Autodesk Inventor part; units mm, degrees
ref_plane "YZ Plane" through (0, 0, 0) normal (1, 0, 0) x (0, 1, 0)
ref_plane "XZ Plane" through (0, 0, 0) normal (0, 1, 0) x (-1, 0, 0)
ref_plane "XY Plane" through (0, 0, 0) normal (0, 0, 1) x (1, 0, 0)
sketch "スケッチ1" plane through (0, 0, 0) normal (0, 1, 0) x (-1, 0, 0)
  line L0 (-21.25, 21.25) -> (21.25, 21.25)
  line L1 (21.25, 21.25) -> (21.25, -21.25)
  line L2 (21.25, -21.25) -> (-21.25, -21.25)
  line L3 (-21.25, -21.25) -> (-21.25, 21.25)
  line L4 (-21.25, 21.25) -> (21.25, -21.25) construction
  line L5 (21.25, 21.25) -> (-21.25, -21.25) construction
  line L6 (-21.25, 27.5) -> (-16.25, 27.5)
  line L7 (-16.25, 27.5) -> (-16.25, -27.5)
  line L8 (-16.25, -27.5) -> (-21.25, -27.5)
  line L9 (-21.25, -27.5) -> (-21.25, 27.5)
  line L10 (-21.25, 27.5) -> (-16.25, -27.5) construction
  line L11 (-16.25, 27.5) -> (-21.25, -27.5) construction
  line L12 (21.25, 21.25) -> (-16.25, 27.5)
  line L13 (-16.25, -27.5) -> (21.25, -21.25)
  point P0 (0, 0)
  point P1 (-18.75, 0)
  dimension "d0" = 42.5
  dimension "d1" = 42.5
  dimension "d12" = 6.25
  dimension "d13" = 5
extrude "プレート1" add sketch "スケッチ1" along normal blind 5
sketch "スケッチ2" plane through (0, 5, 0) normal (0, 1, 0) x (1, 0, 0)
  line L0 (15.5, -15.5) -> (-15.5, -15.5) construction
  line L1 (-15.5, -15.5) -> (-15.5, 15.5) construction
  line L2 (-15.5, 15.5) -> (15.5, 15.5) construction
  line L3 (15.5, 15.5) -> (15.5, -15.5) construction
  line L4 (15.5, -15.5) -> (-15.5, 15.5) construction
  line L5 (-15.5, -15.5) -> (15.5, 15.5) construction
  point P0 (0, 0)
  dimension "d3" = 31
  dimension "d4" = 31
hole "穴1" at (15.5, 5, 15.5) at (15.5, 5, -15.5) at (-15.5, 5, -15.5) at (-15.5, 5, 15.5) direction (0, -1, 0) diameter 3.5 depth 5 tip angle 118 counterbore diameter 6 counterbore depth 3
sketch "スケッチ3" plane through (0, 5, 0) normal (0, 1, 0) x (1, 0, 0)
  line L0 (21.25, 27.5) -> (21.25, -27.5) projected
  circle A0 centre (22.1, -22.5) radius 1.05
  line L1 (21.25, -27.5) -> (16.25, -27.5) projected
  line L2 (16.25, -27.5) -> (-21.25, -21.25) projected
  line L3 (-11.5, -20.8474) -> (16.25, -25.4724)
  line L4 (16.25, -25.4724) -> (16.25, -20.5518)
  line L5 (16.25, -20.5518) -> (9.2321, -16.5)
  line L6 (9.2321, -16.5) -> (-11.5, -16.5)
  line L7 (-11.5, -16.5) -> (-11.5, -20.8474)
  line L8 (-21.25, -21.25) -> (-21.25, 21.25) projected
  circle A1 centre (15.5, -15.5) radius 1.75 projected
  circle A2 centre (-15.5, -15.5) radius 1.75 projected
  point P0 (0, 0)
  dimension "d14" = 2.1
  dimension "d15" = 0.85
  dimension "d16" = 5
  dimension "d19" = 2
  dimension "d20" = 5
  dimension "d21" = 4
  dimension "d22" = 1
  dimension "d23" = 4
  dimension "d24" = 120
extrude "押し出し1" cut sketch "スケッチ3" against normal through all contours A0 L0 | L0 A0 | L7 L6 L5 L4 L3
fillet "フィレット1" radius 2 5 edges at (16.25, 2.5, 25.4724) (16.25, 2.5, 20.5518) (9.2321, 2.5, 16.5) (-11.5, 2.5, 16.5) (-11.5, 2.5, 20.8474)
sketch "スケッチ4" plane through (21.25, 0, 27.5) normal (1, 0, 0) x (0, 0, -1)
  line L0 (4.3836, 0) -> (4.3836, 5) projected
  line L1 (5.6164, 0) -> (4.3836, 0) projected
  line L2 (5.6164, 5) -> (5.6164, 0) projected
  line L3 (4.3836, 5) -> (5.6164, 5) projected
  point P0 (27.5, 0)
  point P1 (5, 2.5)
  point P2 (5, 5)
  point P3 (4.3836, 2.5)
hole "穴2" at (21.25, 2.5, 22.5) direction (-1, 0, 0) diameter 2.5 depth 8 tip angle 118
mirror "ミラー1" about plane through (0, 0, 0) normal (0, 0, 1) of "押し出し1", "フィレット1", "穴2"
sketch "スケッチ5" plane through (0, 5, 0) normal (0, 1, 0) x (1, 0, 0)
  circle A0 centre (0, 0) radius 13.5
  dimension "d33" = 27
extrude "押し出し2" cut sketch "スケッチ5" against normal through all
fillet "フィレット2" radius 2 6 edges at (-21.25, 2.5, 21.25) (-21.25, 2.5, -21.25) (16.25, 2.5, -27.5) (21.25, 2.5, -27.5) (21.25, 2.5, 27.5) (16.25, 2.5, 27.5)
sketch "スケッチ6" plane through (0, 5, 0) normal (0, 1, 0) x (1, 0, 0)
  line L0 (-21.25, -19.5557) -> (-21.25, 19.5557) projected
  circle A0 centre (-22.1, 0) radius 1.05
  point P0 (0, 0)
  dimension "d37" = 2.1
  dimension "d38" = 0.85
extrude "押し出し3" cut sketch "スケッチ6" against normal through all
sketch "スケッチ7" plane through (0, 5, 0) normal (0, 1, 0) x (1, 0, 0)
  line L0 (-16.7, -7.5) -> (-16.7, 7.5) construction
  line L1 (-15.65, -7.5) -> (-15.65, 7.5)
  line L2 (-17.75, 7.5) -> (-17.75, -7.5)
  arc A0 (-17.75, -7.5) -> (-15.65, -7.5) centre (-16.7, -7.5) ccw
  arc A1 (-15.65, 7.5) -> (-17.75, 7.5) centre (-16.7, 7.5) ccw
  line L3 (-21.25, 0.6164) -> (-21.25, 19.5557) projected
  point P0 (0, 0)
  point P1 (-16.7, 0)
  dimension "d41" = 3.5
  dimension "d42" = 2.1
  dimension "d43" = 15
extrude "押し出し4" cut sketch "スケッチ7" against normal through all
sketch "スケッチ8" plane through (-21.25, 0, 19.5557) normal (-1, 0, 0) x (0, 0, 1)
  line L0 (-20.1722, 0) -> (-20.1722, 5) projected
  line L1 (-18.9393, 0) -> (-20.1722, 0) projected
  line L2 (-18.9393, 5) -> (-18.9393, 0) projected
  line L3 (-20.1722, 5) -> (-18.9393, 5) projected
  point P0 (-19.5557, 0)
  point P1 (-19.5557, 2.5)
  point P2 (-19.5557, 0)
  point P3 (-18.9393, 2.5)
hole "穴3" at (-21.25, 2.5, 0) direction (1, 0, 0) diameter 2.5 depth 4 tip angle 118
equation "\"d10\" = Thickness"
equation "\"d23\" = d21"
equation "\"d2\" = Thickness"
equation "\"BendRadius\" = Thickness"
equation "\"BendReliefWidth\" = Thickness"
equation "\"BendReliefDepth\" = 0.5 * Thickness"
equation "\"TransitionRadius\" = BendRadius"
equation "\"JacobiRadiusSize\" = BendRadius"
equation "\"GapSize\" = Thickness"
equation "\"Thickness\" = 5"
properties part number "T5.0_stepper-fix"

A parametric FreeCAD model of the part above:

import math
import FreeCAD as App
import Part
import Sketcher
from FreeCAD import Vector
Q = App.Units.Quantity


def edges_at(feature, points):
    """Names of the edges that pass closest to the given points."""
    edges = feature.Shape.Edges
    near = lambda p: min(range(len(edges)), key=lambda i: edges[i].distToShape(Part.Vertex(*p))[0])
    return sorted({f"Edge{near(p) + 1}" for p in points})

doc = App.newDocument("Part")
body = doc.addObject("PartDesign::Body", "Body")

# Sketch on XZ plane
sketch1 = doc.addObject("Sketcher::SketchObject", "Sketch")
body.addObject(sketch1)
sketch1.AttachmentSupport = (doc.XZ_Plane, [""])
sketch1.MapMode = "FlatFace"
sketch1.addGeometry([
    Part.LineSegment(Vector(21, 28, 0), Vector(21, -28, 0)),  # 0
    Part.LineSegment(Vector(21, -28, 0), Vector(16, -28, 0)),  # 1
    Part.LineSegment(Vector(16, -28, 0), Vector(-21, -21, 0)),  # 2
    Part.LineSegment(Vector(-21, -21, 0), Vector(-21, 21, 0)),  # 3
    Part.LineSegment(Vector(-21, 21, 0), Vector(16, 28, 0)),  # 4
    Part.LineSegment(Vector(16, 28, 0), Vector(21, 28, 0)),  # 5
], False)
sketch1.addConstraint([
    Sketcher.Constraint("Coincident", 0, 2, 1, 1),
    Sketcher.Constraint("Coincident", 1, 2, 2, 1),
    Sketcher.Constraint("Coincident", 2, 2, 3, 1),
    Sketcher.Constraint("Coincident", 3, 2, 4, 1),
    Sketcher.Constraint("Coincident", 4, 2, 5, 1),
    Sketcher.Constraint("Coincident", 5, 2, 0, 1),
    Sketcher.Constraint("Vertical", 0),
    Sketcher.Constraint("Horizontal", 1),
    Sketcher.Constraint("Vertical", 3),
    Sketcher.Constraint("Horizontal", 5),
    Sketcher.Constraint("Symmetric", 1, 2, 4, 2, -1),
    Sketcher.Constraint("Equal", 2, 4),
    Sketcher.Constraint("DistanceX", 1, 2, 1, 1, Q("5 mm")),
    Sketcher.Constraint("DistanceY", 3, 1, 3, 2, Q("42.5 mm")),
    Sketcher.Constraint("DistanceX", 2, 2, 0, 2, Q("42.5 mm")),
    Sketcher.Constraint("DistanceY", 0, 2, 0, 1, Q("55 mm")),
    Sketcher.Constraint("DistanceX", -1, 1, 0, 2, Q("21.25 mm")),
])
pad1 = doc.addObject("PartDesign::Pad", "Pad")
body.addObject(pad1)
pad1.Profile = sketch1
pad1.Length = 5
pad1.Reversed = True

# Sketch on XZ plane
sketch2 = doc.addObject("Sketcher::SketchObject", "Sketch001")
body.addObject(sketch2)
sketch2.AttachmentSupport = (doc.XZ_Plane, [""])
sketch2.MapMode = "FlatFace"
sketch2.AttachmentOffset = App.Placement(Vector(0, 0, -5), App.Rotation())
sketch2.addGeometry([
    Part.Circle(Vector(15.5, 15.5, 0), Vector(0, 0, 1), 1.8),
    Part.Circle(Vector(15.5, -15.5, 0), Vector(0, 0, 1), 1.8),
    Part.Circle(Vector(-15.5, -15.5, 0), Vector(0, 0, 1), 1.8),
    Part.Circle(Vector(-15.5, 15.5, 0), Vector(0, 0, 1), 1.8),
], False)
sketch2.addConstraint([
    Sketcher.Constraint("Equal", 0, 1),
    Sketcher.Constraint("Equal", 1, 2),
    Sketcher.Constraint("Equal", 2, 3),
    Sketcher.Constraint("Symmetric", 0, 3, 2, 3, -1, 1),
    Sketcher.Constraint("Symmetric", 1, 3, 3, 3, -1, 1),
    Sketcher.Constraint("Symmetric", 1, 3, 2, 3, -2),
    Sketcher.Constraint("Diameter", 0, Q("3.5 mm")),
    Sketcher.Constraint("DistanceY", 1, 3, 0, 3, Q("31 mm")),
    Sketcher.Constraint("DistanceX", 2, 3, 1, 3, Q("31 mm")),
])
doc.recompute()
hole = doc.addObject("PartDesign::Hole", "Hole")
body.addObject(hole)
hole.Profile = sketch2
hole.ThreadType = "None"
hole.Diameter = 3.5
hole.DepthType = "Dimension"
hole.Depth = 5
hole.DrillPoint = "Angled"
hole.DrillPointAngle = 118
hole.HoleCutType = "Counterbore"
hole.HoleCutDiameter = 6
hole.HoleCutDepth = 3
hole.Reversed = True

# Sketch on XZ plane
sketch3 = doc.addObject("Sketcher::SketchObject", "Sketch002")
body.addObject(sketch3)
sketch3.AttachmentSupport = (doc.XZ_Plane, [""])
sketch3.MapMode = "FlatFace"
sketch3.AttachmentOffset = App.Placement(Vector(0, 0, -5), App.Rotation())
sketch3.addGeometry([
    Part.Circle(Vector(22.1, 22.5, 0), Vector(0, 0, 1), 1.1),  # 0
    Part.LineSegment(Vector(-11.5, 16.5, 0), Vector(-11.5, 20.8, 0)),  # 1
    Part.LineSegment(Vector(-11.5, 20.8, 0), Vector(16.2, 25.5, 0)),  # 2
    Part.LineSegment(Vector(16.2, 25.5, 0), Vector(16.2, 20.6, 0)),  # 3
    Part.LineSegment(Vector(16.2, 20.6, 0), Vector(9.2, 16.5, 0)),  # 4
    Part.LineSegment(Vector(9.2, 16.5, 0), Vector(-11.5, 16.5, 0)),  # 5
], False)
sketch3.addConstraint([
    Sketcher.Constraint("Coincident", 1, 2, 2, 1),
    Sketcher.Constraint("Coincident", 2, 2, 3, 1),
    Sketcher.Constraint("Coincident", 3, 2, 4, 1),
    Sketcher.Constraint("Coincident", 4, 2, 5, 1),
    Sketcher.Constraint("Coincident", 5, 2, 1, 1),
    Sketcher.Constraint("Vertical", 1),
    Sketcher.Constraint("Vertical", 3),
    Sketcher.Constraint("Horizontal", 5),
    Sketcher.Constraint("Diameter", 0, Q("2.1 mm")),
    Sketcher.Constraint("Angle", 4, Q("-150 deg")),
    Sketcher.Constraint("DistanceY", 4, 2, 0, 3, Q("6 mm")),
    Sketcher.Constraint("DistanceX", -1, 1, 0, 3, Q("22.1 mm")),
    Sketcher.Constraint("DistanceY", -1, 1, 0, 3, Q("22.5 mm")),
    Sketcher.Constraint("DistanceX", 1, 2, -1, 1, Q("11.5 mm")),
    Sketcher.Constraint("DistanceX", 5, 2, 5, 1, Q("20.732 mm")),
    Sketcher.Constraint("DistanceX", -1, 1, 2, 2, Q("16.25 mm")),
    Sketcher.Constraint("DistanceY", 1, 1, 1, 2, Q("4.3474 mm")),
    Sketcher.Constraint("DistanceY", 3, 2, 3, 1, Q("4.9206 mm")),
])
pocket1 = doc.addObject("PartDesign::Pocket", "Pocket")
body.addObject(pocket1)
pocket1.Profile = sketch3
pocket1.Type = "ThroughAll"
pocket1.Reversed = True
doc.recompute()

fillet = doc.addObject("PartDesign::Fillet", "Fillet")
body.addObject(fillet)
fillet.Base = (pocket1, edges_at(pocket1, [
    (16.25, 2.5, 25.472),
    (16.25, 2.5, 20.552),
    (9.232, 2.5, 16.5),
    (-11.5, 2.5, 16.5),
    (-11.5, 2.5, 20.847),
]))
fillet.Radius = 2

# Sketch on YZ plane
sketch4 = doc.addObject("Sketcher::SketchObject", "Sketch003")
body.addObject(sketch4)
sketch4.AttachmentSupport = (doc.YZ_Plane, [""])
sketch4.MapMode = "FlatFace"
sketch4.AttachmentOffset = App.Placement(Vector(0, 0, 21.25), App.Rotation())
sketch4.addGeometry(Part.Circle(Vector(2.5, 22.5, 0), Vector(0, 0, 1), 1.2), False)
sketch4.addConstraint([
    Sketcher.Constraint("Diameter", 0, Q("2.5 mm")),
    Sketcher.Constraint("DistanceX", -1, 1, 0, 3, Q("2.5 mm")),
    Sketcher.Constraint("DistanceY", -1, 1, 0, 3, Q("22.5 mm")),
])
doc.recompute()
hole2 = doc.addObject("PartDesign::Hole", "Hole001")
body.addObject(hole2)
hole2.Profile = sketch4
hole2.ThreadType = "None"
hole2.Diameter = 2.5
hole2.DepthType = "Dimension"
hole2.Depth = 8
hole2.DrillPoint = "Angled"
hole2.DrillPointAngle = 118
doc.recompute()

mirrored = doc.addObject("PartDesign::Mirrored", "Mirrored")
body.addObject(mirrored)
mirrored.Originals = [pocket1, fillet, hole2]
mirrored.MirrorPlane = (doc.XY_Plane, [""])
body.Tip = mirrored

# Sketch on XZ plane
sketch5 = doc.addObject("Sketcher::SketchObject", "Sketch004")
body.addObject(sketch5)
sketch5.AttachmentSupport = (doc.XZ_Plane, [""])
sketch5.MapMode = "FlatFace"
sketch5.AttachmentOffset = App.Placement(Vector(0, 0, -5), App.Rotation())
sketch5.addGeometry(Part.Circle(Vector(0, 0, 0), Vector(0, 0, 1), 14), False)
sketch5.addConstraint([
    Sketcher.Constraint("Coincident", 0, 3, -1, 1),
    Sketcher.Constraint("Diameter", 0, Q("27 mm")),
])
pocket2 = doc.addObject("PartDesign::Pocket", "Pocket001")
body.addObject(pocket2)
pocket2.Profile = sketch5
pocket2.Type = "ThroughAll"
pocket2.Reversed = True
doc.recompute()

fillet2 = doc.addObject("PartDesign::Fillet", "Fillet001")
body.addObject(fillet2)
fillet2.Base = (pocket2, edges_at(pocket2, [
    (-21.25, 2.5, 21.25),
    (-21.25, 2.5, -21.25),
    (16.25, 2.5, -27.5),
    (21.25, 2.5, -27.5),
    (21.25, 2.5, 27.5),
    (16.25, 2.5, 27.5),
]))
fillet2.Radius = 2

# Sketch on XZ plane
sketch6 = doc.addObject("Sketcher::SketchObject", "Sketch005")
body.addObject(sketch6)
sketch6.AttachmentSupport = (doc.XZ_Plane, [""])
sketch6.MapMode = "FlatFace"
sketch6.AttachmentOffset = App.Placement(Vector(0, 0, -5), App.Rotation())
sketch6.addGeometry(Part.Circle(Vector(-22.1, 0, 0), Vector(0, 0, 1), 1.1), False)
sketch6.addConstraint([
    Sketcher.Constraint("PointOnObject", 0, 3, -1),
    Sketcher.Constraint("Diameter", 0, Q("2.1 mm")),
    Sketcher.Constraint("DistanceX", 0, 3, -1, 1, Q("22.1 mm")),
])
pocket3 = doc.addObject("PartDesign::Pocket", "Pocket002")
body.addObject(pocket3)
pocket3.Profile = sketch6
pocket3.Type = "ThroughAll"
pocket3.Reversed = True

# Sketch on XZ plane
sketch7 = doc.addObject("Sketcher::SketchObject", "Sketch006")
body.addObject(sketch7)
sketch7.AttachmentSupport = (doc.XZ_Plane, [""])
sketch7.MapMode = "FlatFace"
sketch7.AttachmentOffset = App.Placement(Vector(0, 0, -5), App.Rotation())
sketch7.addGeometry([
    Part.ArcOfCircle(Part.Circle(Vector(-16.7, 7.5, 0), Vector(0, 0, 1), 1.1), math.radians(0), math.radians(180)),
    Part.LineSegment(Vector(-15.7, 7.5, 0), Vector(-15.7, -7.5, 0)),
    Part.ArcOfCircle(Part.Circle(Vector(-16.7, -7.5, 0), Vector(0, 0, 1), 1), math.radians(180), math.radians(360)),
    Part.LineSegment(Vector(-17.8, -7.5, 0), Vector(-17.8, 7.5, 0)),
], False)
sketch7.addConstraint([
    Sketcher.Constraint("Tangent", 0, 1, 1, 1),
    Sketcher.Constraint("Tangent", 1, 2, 2, 2),
    Sketcher.Constraint("Tangent", 2, 1, 3, 1),
    Sketcher.Constraint("Tangent", 3, 2, 0, 2),
    Sketcher.Constraint("Vertical", 1),
    Sketcher.Constraint("Vertical", 3),
    Sketcher.Constraint("DistanceY", 1, 2, 1, 1, Q("15 mm")),
    Sketcher.Constraint("Radius", 0, Q("1.05 mm")),
    Sketcher.Constraint("DistanceX", 0, 3, -1, 1, Q("16.7 mm")),
    Sketcher.Constraint("DistanceY", -1, 1, 0, 3, Q("7.5 mm")),
])
pocket4 = doc.addObject("PartDesign::Pocket", "Pocket003")
body.addObject(pocket4)
pocket4.Profile = sketch7
pocket4.Type = "ThroughAll"
pocket4.Reversed = True

# Sketch on YZ plane
sketch8 = doc.addObject("Sketcher::SketchObject", "Sketch007")
body.addObject(sketch8)
sketch8.AttachmentSupport = (doc.YZ_Plane, [""])
sketch8.MapMode = "FlatFace"
sketch8.AttachmentOffset = App.Placement(Vector(0, 0, -21.25), App.Rotation())
sketch8.addGeometry(Part.Circle(Vector(2.5, 0, 0), Vector(0, 0, 1), 1.2), False)
sketch8.addConstraint([
    Sketcher.Constraint("PointOnObject", 0, 3, -1),
    Sketcher.Constraint("Diameter", 0, Q("2.5 mm")),
    Sketcher.Constraint("DistanceX", -1, 1, 0, 3, Q("2.5 mm")),
])
doc.recompute()
hole3 = doc.addObject("PartDesign::Hole", "Hole002")
body.addObject(hole3)
hole3.Profile = sketch8
hole3.ThreadType = "None"
hole3.Diameter = 2.5
hole3.DepthType = "Dimension"
hole3.Depth = 4
hole3.DrillPoint = "Angled"
hole3.DrillPointAngle = 118
hole3.Reversed = True

doc.recompute()
